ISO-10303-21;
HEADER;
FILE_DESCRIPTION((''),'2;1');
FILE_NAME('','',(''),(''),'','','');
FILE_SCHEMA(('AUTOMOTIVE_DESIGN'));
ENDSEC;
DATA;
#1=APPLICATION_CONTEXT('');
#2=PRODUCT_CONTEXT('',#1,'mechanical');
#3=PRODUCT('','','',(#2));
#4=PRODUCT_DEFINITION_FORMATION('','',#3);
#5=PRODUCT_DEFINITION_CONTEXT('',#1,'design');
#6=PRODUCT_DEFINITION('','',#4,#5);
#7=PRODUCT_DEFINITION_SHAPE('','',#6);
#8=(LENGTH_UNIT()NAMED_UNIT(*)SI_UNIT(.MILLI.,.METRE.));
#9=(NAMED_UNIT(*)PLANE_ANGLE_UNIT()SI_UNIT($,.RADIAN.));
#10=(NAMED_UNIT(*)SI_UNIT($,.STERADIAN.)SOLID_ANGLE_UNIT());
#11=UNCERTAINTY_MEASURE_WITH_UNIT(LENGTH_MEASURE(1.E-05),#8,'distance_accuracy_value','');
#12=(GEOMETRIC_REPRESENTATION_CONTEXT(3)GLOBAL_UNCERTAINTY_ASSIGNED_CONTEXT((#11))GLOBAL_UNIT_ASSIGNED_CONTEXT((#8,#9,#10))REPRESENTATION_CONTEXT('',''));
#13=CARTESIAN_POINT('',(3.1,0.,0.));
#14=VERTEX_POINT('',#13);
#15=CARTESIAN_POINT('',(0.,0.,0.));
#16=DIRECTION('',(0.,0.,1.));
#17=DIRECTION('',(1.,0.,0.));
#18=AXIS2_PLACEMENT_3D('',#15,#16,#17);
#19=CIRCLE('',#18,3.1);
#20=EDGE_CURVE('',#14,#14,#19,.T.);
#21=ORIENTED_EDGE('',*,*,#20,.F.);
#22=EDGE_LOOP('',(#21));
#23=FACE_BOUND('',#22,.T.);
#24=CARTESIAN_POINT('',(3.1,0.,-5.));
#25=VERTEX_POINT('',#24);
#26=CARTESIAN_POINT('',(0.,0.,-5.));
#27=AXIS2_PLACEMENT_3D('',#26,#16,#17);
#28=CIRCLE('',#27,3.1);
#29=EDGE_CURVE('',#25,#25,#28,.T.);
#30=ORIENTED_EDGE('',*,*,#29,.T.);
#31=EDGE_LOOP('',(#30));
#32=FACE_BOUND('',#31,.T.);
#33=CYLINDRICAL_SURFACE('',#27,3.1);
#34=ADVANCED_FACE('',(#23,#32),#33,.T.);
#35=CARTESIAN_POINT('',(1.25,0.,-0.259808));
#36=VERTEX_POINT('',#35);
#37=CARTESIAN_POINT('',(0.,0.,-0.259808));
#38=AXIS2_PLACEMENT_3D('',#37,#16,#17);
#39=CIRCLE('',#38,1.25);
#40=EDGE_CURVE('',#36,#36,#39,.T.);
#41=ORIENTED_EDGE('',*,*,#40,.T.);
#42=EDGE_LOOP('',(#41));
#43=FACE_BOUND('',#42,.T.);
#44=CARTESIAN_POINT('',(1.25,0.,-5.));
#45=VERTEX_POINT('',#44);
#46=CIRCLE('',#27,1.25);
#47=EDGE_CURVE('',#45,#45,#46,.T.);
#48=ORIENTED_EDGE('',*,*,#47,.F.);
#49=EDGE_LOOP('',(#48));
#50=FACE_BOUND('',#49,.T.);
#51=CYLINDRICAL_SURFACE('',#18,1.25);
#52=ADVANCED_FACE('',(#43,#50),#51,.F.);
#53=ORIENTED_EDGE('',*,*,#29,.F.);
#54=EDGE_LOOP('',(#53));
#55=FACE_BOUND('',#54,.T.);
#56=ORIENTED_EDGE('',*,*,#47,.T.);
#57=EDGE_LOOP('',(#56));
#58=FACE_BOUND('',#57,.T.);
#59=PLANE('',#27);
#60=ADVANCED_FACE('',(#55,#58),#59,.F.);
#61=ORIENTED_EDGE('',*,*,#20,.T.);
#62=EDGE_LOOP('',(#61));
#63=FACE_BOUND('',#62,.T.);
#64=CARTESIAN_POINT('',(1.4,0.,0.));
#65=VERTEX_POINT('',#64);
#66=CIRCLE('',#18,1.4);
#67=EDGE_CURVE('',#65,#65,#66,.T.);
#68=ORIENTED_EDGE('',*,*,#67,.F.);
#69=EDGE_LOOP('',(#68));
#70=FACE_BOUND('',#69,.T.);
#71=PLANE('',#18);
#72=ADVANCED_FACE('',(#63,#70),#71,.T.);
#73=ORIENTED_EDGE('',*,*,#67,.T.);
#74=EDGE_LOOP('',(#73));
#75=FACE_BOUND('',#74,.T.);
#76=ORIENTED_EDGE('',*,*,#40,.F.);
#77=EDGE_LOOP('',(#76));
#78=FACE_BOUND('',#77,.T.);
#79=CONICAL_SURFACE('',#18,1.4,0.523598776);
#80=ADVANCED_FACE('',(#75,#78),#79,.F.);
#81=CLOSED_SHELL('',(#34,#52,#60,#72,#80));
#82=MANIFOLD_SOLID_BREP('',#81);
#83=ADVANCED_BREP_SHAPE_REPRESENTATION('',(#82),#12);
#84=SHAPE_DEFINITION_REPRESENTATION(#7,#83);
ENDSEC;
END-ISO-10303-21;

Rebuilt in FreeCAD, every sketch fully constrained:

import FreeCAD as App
import Part
import Sketcher

V = App.Vector

doc = App.newDocument("Part")
body = doc.addObject("PartDesign::Body", "Body")

sketch1 = body.newObject("Sketcher::SketchObject", "Sketch")
sketch1.AttachmentSupport = (doc.getObject("XY_Plane"), [""])
sketch1.MapMode = "FlatFace"
sketch1.addGeometry(Part.Circle(V(0, 0, 0), V(0, 0, 1), 3.1), False)
sketch1.addConstraint([
    Sketcher.Constraint("Coincident", 0, 3, -1, 1),
    Sketcher.Constraint("Diameter", 0, 6.2),
])
pad1 = body.newObject("PartDesign::Pad", "Pad")
pad1.Profile = sketch1
pad1.Length = 5
pad1.Reversed = True

sketch2 = body.newObject("Sketcher::SketchObject", "Sketch001")
sketch2.AttachmentSupport = (doc.getObject("XY_Plane"), [""])
sketch2.MapMode = "FlatFace"
sketch2.addGeometry(Part.Circle(V(0, 0, 0), V(0, 0, 1), 1.2), False)
sketch2.addConstraint([
    Sketcher.Constraint("Coincident", 0, 3, -1, 1),
    Sketcher.Constraint("Diameter", 0, 2.5),
])
doc.recompute()
hole = body.newObject("PartDesign::Hole", "Hole")
hole.Profile = sketch2
hole.ThreadType = "None"
hole.Diameter = 2.5
hole.DepthType = "Dimension"
hole.Depth = 5
hole.DrillPoint = "Flat"
hole.HoleCutType = "Countersink"
hole.HoleCutDiameter = 2.8
hole.HoleCutCountersinkAngle = 60

doc.recompute()
